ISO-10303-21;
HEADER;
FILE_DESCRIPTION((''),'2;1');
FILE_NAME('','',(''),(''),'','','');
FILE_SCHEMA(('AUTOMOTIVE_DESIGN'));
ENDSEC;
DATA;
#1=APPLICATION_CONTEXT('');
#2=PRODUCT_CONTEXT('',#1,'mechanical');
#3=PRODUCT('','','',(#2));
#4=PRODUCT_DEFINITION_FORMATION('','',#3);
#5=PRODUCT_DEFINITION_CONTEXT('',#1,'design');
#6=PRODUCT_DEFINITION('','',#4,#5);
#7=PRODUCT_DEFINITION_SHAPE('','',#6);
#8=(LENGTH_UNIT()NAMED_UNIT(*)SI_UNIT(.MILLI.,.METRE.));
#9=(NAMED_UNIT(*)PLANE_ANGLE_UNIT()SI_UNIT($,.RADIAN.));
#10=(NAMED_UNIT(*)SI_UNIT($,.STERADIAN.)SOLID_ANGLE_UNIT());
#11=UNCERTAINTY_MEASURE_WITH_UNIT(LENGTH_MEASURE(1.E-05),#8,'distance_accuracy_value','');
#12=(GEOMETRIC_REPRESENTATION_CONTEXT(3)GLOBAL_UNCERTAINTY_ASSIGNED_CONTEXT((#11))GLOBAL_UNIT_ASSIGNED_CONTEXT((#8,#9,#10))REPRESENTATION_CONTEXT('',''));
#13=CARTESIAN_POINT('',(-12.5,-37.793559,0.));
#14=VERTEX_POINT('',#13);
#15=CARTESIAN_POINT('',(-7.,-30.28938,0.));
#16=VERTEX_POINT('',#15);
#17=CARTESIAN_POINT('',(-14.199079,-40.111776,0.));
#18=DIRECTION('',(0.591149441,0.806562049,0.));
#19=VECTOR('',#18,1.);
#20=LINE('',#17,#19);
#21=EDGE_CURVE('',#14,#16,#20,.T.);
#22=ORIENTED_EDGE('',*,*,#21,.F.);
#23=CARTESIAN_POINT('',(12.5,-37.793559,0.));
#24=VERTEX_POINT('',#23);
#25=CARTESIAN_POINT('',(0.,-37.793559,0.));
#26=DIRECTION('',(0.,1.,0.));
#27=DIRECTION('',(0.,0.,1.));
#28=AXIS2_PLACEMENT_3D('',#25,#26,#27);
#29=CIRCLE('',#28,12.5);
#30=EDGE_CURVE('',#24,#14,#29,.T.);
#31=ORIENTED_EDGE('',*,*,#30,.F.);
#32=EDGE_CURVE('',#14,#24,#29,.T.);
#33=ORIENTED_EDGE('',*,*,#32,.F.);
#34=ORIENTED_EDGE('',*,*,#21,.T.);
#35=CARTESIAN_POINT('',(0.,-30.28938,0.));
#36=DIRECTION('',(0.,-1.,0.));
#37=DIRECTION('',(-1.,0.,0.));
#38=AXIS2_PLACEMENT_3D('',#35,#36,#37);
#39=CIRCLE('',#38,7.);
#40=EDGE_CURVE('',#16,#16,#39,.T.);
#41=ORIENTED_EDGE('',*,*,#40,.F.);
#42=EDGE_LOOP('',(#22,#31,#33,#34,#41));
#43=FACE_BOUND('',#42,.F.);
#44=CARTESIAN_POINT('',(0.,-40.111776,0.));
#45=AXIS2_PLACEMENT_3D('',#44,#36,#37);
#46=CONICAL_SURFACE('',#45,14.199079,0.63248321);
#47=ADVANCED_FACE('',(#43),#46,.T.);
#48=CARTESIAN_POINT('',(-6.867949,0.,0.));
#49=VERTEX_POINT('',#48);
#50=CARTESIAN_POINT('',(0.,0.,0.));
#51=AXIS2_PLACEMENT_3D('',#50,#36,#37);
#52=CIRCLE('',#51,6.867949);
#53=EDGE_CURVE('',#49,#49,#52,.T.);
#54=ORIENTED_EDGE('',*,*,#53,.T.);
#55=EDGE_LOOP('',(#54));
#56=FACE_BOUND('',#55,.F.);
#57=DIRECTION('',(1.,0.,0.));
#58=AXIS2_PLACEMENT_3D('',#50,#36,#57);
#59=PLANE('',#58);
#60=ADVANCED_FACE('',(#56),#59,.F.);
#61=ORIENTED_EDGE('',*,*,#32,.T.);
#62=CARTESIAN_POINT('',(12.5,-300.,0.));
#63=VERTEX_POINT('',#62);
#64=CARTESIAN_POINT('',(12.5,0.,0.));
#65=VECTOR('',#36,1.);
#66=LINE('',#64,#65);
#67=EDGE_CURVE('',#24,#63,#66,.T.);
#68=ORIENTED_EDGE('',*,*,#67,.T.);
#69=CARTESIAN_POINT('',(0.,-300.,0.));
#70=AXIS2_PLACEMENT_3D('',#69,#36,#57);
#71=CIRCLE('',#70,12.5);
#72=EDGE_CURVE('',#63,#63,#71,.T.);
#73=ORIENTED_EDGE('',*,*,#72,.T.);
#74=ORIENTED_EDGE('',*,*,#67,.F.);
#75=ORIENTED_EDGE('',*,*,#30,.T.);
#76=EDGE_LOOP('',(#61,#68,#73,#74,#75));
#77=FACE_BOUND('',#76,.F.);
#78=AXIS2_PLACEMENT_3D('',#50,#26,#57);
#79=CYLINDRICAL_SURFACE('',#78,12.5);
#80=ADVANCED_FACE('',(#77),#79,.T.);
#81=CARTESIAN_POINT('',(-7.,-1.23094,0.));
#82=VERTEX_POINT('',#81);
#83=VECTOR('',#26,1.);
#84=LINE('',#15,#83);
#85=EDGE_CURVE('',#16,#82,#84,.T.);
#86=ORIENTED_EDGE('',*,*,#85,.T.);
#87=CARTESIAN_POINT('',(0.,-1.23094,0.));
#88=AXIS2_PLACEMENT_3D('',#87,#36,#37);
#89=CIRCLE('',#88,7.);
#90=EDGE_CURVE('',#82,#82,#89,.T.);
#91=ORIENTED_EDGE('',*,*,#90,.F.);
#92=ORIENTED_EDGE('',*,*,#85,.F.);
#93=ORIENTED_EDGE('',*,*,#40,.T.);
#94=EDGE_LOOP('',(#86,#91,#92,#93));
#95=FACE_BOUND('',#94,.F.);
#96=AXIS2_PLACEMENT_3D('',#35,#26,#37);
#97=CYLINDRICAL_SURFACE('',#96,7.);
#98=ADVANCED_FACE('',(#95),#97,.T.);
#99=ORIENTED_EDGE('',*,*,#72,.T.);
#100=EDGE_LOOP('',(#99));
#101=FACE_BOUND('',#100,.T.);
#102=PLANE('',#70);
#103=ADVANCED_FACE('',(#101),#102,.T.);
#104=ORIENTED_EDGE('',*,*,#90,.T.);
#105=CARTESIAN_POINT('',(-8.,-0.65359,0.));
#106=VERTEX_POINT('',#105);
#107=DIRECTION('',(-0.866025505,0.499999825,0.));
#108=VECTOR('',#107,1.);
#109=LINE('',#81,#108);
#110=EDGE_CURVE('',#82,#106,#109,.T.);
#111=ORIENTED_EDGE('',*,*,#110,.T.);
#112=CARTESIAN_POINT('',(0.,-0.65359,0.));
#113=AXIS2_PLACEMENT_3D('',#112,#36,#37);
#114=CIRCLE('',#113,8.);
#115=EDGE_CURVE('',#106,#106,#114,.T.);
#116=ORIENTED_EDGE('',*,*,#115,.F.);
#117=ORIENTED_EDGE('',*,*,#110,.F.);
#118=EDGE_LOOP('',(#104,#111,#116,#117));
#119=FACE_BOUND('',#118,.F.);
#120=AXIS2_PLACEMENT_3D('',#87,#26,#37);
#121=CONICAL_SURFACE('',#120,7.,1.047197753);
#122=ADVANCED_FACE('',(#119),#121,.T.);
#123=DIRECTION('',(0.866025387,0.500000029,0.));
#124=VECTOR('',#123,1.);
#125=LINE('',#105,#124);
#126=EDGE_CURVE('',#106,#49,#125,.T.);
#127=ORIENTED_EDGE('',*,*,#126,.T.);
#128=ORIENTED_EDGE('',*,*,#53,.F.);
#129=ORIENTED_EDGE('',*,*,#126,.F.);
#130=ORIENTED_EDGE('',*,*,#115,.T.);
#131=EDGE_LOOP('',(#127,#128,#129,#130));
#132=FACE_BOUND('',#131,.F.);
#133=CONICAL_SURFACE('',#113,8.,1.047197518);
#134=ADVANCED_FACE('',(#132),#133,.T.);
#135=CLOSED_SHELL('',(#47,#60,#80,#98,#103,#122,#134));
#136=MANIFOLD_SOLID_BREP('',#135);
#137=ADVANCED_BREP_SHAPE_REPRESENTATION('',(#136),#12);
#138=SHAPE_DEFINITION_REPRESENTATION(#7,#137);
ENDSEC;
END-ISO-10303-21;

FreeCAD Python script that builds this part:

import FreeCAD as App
import Part
import Sketcher
from FreeCAD import Vector
Q = App.Units.Quantity

doc = App.newDocument("Part")
params = doc.addObject("Spreadsheet::Sheet", "Params")
for row, (alias, value) in enumerate([
    ("sketch1_diameter", "25 mm"),
    ("pad1_length", "300 mm"),
    ("groove_angle", "360 deg"),
], start=1):
    params.set(f"A{row}", alias)
    params.set(f"B{row}", "=" + value)
    params.setAlias(f"B{row}", alias)

body = doc.addObject("PartDesign::Body", "Body")

sketch1 = body.newObject("Sketcher::SketchObject", "Sketch")
sketch1.AttachmentSupport = (doc.getObject("XZ_Plane"), [""])
sketch1.MapMode = "FlatFace"
sketch1.addGeometry(Part.Circle(Vector(0, 0, 0), Vector(0, 0, 1), 12), False)
sketch1.addConstraint(Sketcher.Constraint("Coincident", 0, 3, -1, 1))
sketch1.addConstraint(Sketcher.Constraint("Diameter", 0, 25.0))
sketch1.setExpression("Constraints[1]", "Params.sketch1_diameter")
pad1 = body.newObject("PartDesign::Pad", "Pad")
pad1.Profile = sketch1
pad1.setExpression("Length", "Params.pad1_length")

sketch2 = body.newObject("Sketcher::SketchObject", "Sketch001")
sketch2.AttachmentSupport = (doc.getObject("XY_Plane"), [""])
sketch2.MapMode = "FlatFace"
sketch2.addGeometry(Part.LineSegment(Vector(-7, -1.2, 0), Vector(-8, -0.7, 0)), False)
sketch2.addGeometry(Part.LineSegment(Vector(-8, -0.7, 0), Vector(-6.9, 0, 0)), False)
sketch2.addGeometry(Part.LineSegment(Vector(-6.9, 0, 0), Vector(-14.2, 3.7, 0)), False)
sketch2.addGeometry(Part.LineSegment(Vector(-14.2, 3.7, 0), Vector(-14.2, -40.1, 0)), False)
sketch2.addGeometry(Part.LineSegment(Vector(-14.2, -40.1, 0), Vector(-7, -30.3, 0)), False)
sketch2.addGeometry(Part.LineSegment(Vector(-7, -30.3, 0), Vector(-7, -1.2, 0)), False)
sketch2.addConstraint(Sketcher.Constraint("Coincident", 0, 2, 1, 1))
sketch2.addConstraint(Sketcher.Constraint("Coincident", 1, 2, 2, 1))
sketch2.addConstraint(Sketcher.Constraint("Coincident", 2, 2, 3, 1))
sketch2.addConstraint(Sketcher.Constraint("Coincident", 3, 2, 4, 1))
sketch2.addConstraint(Sketcher.Constraint("Coincident", 4, 2, 5, 1))
sketch2.addConstraint(Sketcher.Constraint("Coincident", 5, 2, 0, 1))
sketch2.addConstraint(Sketcher.Constraint("Vertical", 3))
sketch2.addConstraint(Sketcher.Constraint("Vertical", 5))
sketch2.addConstraint(Sketcher.Constraint("PointOnObject", 1, 2, -1))
sketch2.addConstraint(Sketcher.Constraint("Angle", 0, Q("150.000012 deg")))
sketch2.addConstraint(Sketcher.Constraint("Angle", 1, Q("30.000002 deg")))
sketch2.addConstraint(Sketcher.Constraint("DistanceX", 0, 2, -1, 1, 8.0))
sketch2.addConstraint(Sketcher.Constraint("DistanceX", 4, 2, -1, 1, 7.0))
sketch2.addConstraint(Sketcher.Constraint("DistanceY", 5, 1, 5, 2, 29.05844))
sketch2.addConstraint(Sketcher.Constraint("DistanceY", 5, 2, 2, 2, 4.9032))
sketch2.addConstraint(Sketcher.Constraint("Distance", 1, 1.30718))
sketch2.addConstraint(Sketcher.Constraint("Distance", 2, 8.199449))
sketch2.addConstraint(Sketcher.Constraint("DistanceY", 3, 2, 3, 1, 43.784036))
groove = body.newObject("PartDesign::Groove", "Groove")
groove.Profile = sketch2
groove.ReferenceAxis = (sketch2, ["V_Axis"])
groove.setExpression("Angle", "Params.groove_angle")

doc.recompute()
